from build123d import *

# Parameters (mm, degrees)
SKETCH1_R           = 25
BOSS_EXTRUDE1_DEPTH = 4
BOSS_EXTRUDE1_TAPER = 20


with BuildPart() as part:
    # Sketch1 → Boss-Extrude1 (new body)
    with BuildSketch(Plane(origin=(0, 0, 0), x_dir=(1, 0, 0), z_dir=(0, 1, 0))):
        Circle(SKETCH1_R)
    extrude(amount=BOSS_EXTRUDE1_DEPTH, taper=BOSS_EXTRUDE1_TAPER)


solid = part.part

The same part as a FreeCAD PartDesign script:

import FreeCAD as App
import Part
import Sketcher
from FreeCAD import Vector

doc = App.newDocument("Part")
body = doc.addObject("PartDesign::Body", "Body")

sketch1 = body.newObject("Sketcher::SketchObject", "Sketch")
sketch1.AttachmentSupport = (doc.getObject("XZ_Plane"), [""])
sketch1.MapMode = "FlatFace"
sketch1.addGeometry(Part.Circle(Vector(0, 0, 0), Vector(0, 0, 1), 25), False)
sketch1.addConstraint([
    Sketcher.Constraint("Coincident", 0, 3, -1, 1),
    Sketcher.Constraint("Diameter", 0, 50.0),
])
pad1 = body.newObject("PartDesign::Pad", "Pad")
pad1.Profile = sketch1
pad1.Length = 4
pad1.Reversed = True
pad1.TaperAngle = -20

doc.recompute()
